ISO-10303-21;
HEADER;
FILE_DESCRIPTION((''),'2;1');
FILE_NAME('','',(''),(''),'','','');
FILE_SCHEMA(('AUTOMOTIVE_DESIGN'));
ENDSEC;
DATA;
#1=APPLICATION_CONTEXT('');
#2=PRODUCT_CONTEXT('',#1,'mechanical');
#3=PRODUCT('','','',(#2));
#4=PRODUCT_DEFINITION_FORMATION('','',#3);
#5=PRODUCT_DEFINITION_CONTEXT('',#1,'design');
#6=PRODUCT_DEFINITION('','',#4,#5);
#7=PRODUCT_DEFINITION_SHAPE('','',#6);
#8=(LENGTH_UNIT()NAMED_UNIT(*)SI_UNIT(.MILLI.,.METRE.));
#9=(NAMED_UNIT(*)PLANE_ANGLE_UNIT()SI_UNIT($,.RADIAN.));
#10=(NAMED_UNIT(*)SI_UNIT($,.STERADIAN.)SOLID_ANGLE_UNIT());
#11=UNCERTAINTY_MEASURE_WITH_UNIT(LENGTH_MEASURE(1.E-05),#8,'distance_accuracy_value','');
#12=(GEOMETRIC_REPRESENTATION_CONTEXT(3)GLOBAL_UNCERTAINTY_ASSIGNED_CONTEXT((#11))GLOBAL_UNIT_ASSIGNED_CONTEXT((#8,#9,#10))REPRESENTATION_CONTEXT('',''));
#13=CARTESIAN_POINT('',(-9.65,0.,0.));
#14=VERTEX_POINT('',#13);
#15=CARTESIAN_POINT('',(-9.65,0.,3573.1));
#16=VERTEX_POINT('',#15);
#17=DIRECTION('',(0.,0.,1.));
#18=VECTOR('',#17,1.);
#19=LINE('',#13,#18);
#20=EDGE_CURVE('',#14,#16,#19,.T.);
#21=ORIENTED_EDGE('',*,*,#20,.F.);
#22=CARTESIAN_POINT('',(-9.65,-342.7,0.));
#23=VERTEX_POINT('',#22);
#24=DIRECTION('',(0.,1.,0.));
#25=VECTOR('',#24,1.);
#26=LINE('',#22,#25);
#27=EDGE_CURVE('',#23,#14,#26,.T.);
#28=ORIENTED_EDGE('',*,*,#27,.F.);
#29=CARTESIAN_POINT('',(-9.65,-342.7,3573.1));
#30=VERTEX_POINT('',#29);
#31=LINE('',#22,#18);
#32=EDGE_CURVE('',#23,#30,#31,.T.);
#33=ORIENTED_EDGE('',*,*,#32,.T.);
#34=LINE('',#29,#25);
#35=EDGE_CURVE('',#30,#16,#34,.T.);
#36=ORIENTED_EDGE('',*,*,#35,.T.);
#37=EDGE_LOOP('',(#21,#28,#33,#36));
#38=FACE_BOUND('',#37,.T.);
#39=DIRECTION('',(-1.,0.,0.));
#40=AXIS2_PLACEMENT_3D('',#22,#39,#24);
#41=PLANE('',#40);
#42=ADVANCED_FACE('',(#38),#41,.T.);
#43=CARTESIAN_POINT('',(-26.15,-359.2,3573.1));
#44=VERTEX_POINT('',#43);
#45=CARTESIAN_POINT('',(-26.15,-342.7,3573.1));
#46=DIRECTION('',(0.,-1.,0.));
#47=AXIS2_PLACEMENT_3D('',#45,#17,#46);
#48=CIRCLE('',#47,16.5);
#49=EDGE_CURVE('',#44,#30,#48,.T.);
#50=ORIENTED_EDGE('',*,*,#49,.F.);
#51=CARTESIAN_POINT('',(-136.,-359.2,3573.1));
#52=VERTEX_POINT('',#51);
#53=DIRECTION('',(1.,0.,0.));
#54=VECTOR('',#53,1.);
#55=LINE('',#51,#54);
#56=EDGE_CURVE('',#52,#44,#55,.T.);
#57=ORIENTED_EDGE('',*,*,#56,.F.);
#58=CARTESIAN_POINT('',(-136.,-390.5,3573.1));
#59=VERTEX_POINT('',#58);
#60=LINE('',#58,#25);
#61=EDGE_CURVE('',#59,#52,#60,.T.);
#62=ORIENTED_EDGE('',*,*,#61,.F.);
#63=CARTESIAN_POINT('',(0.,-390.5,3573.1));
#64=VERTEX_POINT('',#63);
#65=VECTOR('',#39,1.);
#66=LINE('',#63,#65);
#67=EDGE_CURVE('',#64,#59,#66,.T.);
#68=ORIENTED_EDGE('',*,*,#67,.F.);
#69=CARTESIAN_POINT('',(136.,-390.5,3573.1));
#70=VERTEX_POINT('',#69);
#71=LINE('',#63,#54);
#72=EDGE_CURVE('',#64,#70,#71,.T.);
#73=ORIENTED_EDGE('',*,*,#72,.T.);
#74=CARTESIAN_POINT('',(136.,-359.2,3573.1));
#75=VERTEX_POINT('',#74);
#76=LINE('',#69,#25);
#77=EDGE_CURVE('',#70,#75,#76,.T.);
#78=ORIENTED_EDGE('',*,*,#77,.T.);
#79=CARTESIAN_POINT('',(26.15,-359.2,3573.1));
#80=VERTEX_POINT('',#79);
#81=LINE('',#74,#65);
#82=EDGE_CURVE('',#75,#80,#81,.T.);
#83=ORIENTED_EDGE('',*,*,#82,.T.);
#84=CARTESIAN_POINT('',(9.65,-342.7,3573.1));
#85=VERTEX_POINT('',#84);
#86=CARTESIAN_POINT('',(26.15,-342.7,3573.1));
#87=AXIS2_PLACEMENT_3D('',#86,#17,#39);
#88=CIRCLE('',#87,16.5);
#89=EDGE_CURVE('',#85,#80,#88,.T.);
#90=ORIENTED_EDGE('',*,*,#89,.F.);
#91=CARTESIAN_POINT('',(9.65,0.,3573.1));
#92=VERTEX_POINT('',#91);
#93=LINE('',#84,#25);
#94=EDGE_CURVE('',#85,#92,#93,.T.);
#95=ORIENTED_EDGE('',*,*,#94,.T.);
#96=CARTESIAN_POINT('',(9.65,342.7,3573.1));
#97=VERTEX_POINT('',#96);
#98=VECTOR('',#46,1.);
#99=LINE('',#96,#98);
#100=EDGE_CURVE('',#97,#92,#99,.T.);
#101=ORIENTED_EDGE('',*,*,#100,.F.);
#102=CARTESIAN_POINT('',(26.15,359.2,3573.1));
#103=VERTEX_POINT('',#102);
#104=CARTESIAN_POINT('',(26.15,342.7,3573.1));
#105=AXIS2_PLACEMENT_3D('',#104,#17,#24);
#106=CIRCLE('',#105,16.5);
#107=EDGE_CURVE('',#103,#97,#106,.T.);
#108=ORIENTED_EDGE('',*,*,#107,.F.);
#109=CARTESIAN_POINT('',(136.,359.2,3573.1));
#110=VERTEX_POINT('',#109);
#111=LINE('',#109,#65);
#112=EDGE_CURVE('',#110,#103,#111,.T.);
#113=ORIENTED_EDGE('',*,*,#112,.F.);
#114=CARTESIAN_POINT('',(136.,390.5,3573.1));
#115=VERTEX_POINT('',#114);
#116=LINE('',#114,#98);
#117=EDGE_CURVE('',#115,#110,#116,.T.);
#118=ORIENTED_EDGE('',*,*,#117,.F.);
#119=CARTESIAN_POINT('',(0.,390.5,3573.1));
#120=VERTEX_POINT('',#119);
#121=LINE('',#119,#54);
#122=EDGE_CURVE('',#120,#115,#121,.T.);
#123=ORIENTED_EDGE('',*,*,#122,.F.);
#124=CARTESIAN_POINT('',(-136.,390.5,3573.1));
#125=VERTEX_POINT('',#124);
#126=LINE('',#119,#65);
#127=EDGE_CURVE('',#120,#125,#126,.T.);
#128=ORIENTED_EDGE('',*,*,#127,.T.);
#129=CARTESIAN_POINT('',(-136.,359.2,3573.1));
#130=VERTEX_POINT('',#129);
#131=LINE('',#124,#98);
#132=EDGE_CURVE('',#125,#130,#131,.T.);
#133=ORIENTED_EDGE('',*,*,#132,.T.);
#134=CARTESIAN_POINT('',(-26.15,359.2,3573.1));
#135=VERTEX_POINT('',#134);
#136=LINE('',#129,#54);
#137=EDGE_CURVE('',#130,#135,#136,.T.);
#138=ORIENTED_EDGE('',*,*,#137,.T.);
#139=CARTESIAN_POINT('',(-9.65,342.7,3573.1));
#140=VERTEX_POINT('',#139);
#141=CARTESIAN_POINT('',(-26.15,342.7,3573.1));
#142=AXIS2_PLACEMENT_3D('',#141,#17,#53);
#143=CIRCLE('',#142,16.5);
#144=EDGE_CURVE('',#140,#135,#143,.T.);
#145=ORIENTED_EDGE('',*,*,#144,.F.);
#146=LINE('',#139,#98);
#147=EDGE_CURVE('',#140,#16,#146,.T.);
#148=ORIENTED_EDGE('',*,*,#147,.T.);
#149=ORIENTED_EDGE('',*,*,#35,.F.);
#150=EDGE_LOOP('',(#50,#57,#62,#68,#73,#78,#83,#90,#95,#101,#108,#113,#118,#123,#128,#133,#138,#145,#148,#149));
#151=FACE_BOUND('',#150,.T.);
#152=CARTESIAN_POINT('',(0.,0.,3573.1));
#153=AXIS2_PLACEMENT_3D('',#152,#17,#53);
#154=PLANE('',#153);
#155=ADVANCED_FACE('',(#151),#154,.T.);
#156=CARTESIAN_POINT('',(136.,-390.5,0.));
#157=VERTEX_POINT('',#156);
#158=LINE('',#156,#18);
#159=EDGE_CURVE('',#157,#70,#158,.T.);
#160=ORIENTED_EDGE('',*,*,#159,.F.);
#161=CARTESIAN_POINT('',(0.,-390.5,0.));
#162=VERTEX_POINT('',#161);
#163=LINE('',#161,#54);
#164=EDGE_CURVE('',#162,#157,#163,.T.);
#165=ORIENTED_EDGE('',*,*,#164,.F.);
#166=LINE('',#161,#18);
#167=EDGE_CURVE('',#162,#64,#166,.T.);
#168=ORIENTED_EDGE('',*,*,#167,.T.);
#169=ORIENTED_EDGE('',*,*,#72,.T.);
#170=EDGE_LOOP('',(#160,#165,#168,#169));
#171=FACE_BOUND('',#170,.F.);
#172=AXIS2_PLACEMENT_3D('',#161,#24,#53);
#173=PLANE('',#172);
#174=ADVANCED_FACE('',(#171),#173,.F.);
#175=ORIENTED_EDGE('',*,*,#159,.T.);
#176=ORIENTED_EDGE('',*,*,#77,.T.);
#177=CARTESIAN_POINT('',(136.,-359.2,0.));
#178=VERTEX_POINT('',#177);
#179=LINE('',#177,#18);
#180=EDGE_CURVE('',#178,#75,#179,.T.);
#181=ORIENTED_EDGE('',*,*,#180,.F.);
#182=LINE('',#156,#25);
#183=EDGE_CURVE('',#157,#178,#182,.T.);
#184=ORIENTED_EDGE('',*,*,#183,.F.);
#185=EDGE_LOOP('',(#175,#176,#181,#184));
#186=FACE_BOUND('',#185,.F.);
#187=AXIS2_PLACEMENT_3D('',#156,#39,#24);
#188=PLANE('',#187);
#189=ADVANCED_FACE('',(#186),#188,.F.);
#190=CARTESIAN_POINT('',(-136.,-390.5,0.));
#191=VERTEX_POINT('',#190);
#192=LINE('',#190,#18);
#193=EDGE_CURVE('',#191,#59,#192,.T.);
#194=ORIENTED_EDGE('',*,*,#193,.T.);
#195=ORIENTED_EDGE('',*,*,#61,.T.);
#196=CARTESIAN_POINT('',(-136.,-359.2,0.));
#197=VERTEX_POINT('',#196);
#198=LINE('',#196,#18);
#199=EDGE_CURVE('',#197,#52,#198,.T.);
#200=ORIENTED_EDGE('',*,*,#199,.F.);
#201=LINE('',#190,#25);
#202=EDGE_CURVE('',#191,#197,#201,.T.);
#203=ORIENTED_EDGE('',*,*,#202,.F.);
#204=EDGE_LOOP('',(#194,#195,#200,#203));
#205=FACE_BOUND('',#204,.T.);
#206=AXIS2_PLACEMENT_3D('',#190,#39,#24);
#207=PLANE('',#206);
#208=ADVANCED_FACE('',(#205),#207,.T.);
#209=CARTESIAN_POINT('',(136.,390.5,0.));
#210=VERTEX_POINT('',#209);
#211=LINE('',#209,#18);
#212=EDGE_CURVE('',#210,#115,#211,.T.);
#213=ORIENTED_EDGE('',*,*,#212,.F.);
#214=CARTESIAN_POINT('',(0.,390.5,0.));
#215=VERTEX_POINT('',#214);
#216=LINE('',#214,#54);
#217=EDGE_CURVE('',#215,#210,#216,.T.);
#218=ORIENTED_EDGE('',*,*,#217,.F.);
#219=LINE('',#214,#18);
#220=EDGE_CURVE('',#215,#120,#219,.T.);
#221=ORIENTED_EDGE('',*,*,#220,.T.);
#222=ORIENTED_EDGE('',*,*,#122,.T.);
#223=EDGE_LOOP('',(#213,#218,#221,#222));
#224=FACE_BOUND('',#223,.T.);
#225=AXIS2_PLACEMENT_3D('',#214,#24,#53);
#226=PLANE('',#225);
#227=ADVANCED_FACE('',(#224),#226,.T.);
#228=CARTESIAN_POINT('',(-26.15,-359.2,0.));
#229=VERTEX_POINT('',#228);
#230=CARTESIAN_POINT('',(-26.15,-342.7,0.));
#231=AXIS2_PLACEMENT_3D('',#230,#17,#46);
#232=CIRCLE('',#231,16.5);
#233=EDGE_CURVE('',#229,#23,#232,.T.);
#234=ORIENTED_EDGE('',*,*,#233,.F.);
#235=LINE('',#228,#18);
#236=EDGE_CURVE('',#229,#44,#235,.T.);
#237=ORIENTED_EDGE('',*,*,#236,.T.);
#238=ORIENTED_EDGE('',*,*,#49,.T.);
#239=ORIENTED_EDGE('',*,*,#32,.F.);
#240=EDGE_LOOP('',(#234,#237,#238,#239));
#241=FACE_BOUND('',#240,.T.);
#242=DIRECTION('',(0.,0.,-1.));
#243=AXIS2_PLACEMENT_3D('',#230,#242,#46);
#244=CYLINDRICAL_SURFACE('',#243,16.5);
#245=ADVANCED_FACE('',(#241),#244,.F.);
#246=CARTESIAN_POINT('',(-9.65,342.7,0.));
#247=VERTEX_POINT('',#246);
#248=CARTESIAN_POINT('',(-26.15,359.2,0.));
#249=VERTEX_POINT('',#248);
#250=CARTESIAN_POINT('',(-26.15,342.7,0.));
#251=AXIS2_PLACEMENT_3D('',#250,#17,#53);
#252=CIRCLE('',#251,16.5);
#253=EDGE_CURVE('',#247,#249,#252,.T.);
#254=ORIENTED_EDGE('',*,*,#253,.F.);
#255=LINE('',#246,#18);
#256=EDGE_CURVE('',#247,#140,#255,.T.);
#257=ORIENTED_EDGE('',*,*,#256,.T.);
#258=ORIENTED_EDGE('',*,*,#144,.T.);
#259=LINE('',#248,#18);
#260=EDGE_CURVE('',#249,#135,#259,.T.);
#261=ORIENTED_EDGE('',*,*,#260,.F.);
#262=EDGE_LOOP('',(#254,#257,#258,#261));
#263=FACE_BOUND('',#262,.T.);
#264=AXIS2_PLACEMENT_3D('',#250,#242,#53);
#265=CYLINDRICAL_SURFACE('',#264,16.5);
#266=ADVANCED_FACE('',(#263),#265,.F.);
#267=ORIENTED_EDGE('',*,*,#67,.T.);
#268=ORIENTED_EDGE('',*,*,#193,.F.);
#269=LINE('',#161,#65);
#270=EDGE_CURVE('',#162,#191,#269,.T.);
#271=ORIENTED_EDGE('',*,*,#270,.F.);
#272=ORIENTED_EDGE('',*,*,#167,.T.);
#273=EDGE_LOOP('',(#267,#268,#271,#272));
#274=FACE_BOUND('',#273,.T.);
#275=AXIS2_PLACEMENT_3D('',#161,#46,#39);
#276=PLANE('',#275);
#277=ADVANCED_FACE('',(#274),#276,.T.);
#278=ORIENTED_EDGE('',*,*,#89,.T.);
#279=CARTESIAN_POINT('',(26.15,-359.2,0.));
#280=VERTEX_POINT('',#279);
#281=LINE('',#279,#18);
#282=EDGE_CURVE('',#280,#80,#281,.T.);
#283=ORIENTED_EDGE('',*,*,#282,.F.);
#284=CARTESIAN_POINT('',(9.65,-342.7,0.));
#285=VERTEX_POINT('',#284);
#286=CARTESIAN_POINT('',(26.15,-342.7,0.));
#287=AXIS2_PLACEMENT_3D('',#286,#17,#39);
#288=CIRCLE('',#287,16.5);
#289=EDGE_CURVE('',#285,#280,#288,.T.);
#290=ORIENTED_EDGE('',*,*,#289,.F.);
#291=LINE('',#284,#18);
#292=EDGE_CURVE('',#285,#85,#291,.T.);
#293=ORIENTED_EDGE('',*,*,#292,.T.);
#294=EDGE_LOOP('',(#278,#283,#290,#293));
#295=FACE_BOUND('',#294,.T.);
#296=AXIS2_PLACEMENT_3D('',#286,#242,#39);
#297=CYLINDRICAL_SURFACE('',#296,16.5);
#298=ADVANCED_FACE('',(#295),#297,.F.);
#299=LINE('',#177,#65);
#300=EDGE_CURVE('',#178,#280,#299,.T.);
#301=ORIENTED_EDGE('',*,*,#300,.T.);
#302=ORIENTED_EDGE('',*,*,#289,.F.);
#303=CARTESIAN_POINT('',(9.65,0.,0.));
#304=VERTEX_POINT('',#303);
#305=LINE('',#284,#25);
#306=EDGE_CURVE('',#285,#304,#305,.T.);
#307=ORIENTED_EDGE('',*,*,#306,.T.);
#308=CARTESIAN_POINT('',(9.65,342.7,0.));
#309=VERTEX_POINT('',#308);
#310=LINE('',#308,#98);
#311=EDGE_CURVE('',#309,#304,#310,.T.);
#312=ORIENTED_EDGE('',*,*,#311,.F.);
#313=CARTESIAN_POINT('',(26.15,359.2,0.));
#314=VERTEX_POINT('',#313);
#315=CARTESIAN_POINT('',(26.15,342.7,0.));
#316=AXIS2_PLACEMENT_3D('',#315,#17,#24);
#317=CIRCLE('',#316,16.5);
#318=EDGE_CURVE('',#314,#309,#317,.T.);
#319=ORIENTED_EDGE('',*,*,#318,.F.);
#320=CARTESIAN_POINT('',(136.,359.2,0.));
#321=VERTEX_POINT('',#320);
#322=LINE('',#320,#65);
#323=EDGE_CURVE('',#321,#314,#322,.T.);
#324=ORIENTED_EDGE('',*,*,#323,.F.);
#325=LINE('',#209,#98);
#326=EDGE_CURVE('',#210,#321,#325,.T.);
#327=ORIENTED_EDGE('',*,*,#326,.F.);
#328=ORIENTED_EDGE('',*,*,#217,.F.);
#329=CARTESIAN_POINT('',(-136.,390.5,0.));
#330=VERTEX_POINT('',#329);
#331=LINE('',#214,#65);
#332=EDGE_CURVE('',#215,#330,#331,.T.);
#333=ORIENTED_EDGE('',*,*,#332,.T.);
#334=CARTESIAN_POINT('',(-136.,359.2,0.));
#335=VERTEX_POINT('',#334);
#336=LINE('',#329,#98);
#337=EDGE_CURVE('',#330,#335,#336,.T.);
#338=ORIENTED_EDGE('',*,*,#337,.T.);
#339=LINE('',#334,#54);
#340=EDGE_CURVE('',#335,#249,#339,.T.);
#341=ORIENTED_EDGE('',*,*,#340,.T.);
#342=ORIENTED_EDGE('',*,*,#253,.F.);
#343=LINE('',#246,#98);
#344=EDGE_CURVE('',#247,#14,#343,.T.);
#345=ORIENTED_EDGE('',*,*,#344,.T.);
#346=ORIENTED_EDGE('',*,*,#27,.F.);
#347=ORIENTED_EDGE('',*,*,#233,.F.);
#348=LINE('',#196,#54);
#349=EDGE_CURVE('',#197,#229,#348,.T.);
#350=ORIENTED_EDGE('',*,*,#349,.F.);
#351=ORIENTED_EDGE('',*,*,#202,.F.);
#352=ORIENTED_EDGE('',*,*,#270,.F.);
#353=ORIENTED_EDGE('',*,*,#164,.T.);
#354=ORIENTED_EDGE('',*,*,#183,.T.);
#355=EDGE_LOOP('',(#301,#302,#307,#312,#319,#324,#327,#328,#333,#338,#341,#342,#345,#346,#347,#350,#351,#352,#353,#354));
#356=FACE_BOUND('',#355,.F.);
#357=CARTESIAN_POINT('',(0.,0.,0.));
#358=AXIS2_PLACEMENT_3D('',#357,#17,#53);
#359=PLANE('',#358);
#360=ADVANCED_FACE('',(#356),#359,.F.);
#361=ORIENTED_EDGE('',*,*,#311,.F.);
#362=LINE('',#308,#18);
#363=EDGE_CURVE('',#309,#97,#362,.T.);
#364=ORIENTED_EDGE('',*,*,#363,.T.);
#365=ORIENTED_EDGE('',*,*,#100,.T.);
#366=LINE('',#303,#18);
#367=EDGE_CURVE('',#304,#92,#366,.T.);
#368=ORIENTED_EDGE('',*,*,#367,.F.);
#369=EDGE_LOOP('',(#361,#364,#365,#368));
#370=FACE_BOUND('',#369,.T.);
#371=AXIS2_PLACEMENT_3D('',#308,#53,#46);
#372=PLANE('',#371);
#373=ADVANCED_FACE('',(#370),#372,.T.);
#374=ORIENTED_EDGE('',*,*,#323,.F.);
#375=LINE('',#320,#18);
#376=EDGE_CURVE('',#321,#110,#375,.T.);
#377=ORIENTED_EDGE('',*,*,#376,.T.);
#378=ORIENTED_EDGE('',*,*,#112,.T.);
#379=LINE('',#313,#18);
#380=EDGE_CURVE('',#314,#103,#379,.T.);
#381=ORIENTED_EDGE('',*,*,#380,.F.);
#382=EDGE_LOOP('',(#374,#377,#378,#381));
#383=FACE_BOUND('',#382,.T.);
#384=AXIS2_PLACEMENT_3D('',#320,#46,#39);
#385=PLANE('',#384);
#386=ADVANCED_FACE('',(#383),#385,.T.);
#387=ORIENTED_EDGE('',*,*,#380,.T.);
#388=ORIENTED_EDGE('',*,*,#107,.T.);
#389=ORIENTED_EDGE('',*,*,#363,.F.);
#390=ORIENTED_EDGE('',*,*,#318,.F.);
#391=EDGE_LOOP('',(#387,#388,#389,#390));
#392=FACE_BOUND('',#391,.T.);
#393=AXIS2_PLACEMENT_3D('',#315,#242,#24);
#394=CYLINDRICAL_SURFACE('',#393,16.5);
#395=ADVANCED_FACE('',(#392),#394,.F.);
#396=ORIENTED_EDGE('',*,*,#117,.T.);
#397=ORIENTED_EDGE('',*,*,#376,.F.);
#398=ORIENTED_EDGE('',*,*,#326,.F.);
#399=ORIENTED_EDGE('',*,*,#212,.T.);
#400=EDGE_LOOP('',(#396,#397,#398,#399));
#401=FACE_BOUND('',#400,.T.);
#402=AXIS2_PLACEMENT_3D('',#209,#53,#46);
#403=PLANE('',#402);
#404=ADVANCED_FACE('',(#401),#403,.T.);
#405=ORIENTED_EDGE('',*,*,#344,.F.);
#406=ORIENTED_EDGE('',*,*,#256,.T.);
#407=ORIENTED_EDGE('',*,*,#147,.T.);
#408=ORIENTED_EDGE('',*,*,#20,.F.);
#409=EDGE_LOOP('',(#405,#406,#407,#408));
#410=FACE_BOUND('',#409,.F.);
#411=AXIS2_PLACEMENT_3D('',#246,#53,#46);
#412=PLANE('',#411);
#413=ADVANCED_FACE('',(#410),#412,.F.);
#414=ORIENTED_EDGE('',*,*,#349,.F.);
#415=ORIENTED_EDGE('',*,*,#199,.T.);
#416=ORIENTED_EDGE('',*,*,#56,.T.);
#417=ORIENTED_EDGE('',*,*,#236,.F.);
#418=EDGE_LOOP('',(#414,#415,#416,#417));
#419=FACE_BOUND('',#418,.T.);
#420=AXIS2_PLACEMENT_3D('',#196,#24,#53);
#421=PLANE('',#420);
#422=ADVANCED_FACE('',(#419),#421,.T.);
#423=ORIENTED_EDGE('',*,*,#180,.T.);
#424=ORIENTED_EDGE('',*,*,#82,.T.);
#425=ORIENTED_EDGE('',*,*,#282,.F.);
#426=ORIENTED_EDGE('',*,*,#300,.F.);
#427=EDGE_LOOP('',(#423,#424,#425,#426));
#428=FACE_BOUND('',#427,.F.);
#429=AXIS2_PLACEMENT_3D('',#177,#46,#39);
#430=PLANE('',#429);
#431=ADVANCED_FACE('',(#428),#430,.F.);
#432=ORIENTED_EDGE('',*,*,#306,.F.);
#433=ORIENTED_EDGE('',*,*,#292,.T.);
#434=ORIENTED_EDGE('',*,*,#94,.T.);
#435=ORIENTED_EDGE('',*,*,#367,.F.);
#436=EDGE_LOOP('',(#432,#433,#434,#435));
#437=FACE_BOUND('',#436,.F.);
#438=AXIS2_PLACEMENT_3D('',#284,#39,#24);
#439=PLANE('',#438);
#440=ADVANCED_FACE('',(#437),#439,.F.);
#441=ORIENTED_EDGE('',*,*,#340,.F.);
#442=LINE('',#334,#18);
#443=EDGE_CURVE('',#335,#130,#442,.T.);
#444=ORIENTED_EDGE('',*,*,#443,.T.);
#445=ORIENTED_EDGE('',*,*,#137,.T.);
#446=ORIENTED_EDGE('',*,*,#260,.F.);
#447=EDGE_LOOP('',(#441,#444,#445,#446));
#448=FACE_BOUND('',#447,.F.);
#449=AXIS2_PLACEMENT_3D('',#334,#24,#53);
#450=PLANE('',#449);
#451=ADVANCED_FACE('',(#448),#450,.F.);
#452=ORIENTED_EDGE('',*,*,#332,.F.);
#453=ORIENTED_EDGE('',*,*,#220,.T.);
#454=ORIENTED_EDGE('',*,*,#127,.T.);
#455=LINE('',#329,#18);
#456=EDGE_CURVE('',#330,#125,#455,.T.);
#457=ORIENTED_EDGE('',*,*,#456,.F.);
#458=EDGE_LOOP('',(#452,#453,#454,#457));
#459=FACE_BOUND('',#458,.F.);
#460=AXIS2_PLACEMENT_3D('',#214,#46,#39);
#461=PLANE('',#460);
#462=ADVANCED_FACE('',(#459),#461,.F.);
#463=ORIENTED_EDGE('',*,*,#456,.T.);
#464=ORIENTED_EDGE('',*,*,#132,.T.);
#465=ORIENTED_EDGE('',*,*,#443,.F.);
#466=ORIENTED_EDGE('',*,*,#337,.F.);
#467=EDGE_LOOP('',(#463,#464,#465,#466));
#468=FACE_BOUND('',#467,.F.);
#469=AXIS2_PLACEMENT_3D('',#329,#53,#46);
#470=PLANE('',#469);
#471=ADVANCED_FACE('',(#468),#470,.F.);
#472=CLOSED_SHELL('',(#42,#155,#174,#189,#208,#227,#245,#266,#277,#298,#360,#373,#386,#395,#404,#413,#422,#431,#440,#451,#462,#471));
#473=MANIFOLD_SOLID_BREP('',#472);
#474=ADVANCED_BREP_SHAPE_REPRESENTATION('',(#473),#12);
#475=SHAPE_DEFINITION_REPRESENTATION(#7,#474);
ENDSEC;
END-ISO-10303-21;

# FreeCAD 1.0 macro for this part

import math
import FreeCAD as App
import Part
import Sketcher
from FreeCAD import Vector
Q = App.Units.Quantity

doc = App.newDocument("Part")
params = doc.addObject("Spreadsheet::Sheet", "Params")
for row, (alias, value) in enumerate([
    ("sketch1_radius", "16.5 mm"),
    ("sketch1_height", "31.3 mm"),
    ("pad1_length", "3573.1 mm"),
], start=1):
    params.set(f"A{row}", alias)
    params.set(f"B{row}", "=" + value)
    params.setAlias(f"B{row}", alias)

body = doc.addObject("PartDesign::Body", "Body")

# Sketch on XY plane
sketch1 = body.newObject("Sketcher::SketchObject", "Sketch")
sketch1.AttachmentSupport = (doc.getObject("XY_Plane"), [""])
sketch1.MapMode = "FlatFace"
sketch1.addGeometry([
    Part.LineSegment(Vector(-136, -359, 0), Vector(-136, -390, 0)),  # 0
    Part.LineSegment(Vector(-136, -390, 0), Vector(136, -390, 0)),  # 1
    Part.LineSegment(Vector(136, -390, 0), Vector(136, -359, 0)),  # 2
    Part.LineSegment(Vector(136, -359, 0), Vector(26, -359, 0)),  # 3
    Part.ArcOfCircle(Part.Circle(Vector(26, -343, 0), Vector(0, 0, 1), 16), math.radians(180), math.radians(270)),  # 4
    Part.LineSegment(Vector(10, -343, 0), Vector(10, 343, 0)),  # 5
    Part.ArcOfCircle(Part.Circle(Vector(26, 343, 0), Vector(0, 0, 1), 16), math.radians(90), math.radians(180)),  # 6
    Part.LineSegment(Vector(26, 359, 0), Vector(136, 359, 0)),  # 7
    Part.LineSegment(Vector(136, 359, 0), Vector(136, 390, 0)),  # 8
    Part.LineSegment(Vector(136, 390, 0), Vector(-136, 390, 0)),  # 9
    Part.LineSegment(Vector(-136, 390, 0), Vector(-136, 359, 0)),  # 10
    Part.LineSegment(Vector(-136, 359, 0), Vector(-26, 359, 0)),  # 11
    Part.ArcOfCircle(Part.Circle(Vector(-26, 343, 0), Vector(0, 0, 1), 16), math.radians(0), math.radians(90)),  # 12
    Part.LineSegment(Vector(-10, 343, 0), Vector(-10, -343, 0)),  # 13
    Part.ArcOfCircle(Part.Circle(Vector(-26, -343, 0), Vector(0, 0, 1), 16), math.radians(-90), math.radians(0)),  # 14
    Part.LineSegment(Vector(-26, -359, 0), Vector(-136, -359, 0)),  # 15
], False)
sketch1.addConstraint([
    Sketcher.Constraint("Coincident", 0, 2, 1, 1),
    Sketcher.Constraint("Coincident", 1, 2, 2, 1),
    Sketcher.Constraint("Coincident", 2, 2, 3, 1),
    Sketcher.Constraint("Tangent", 3, 2, 4, 2),
    Sketcher.Constraint("Tangent", 4, 1, 5, 1),
    Sketcher.Constraint("Tangent", 5, 2, 6, 2),
    Sketcher.Constraint("Tangent", 6, 1, 7, 1),
    Sketcher.Constraint("Coincident", 7, 2, 8, 1),
    Sketcher.Constraint("Coincident", 8, 2, 9, 1),
    Sketcher.Constraint("Coincident", 9, 2, 10, 1),
    Sketcher.Constraint("Coincident", 10, 2, 11, 1),
    Sketcher.Constraint("Tangent", 11, 2, 12, 2),
    Sketcher.Constraint("Tangent", 12, 1, 13, 1),
    Sketcher.Constraint("Tangent", 13, 2, 14, 2),
    Sketcher.Constraint("Tangent", 14, 1, 15, 1),
    Sketcher.Constraint("Coincident", 15, 2, 0, 1),
    Sketcher.Constraint("Vertical", 0),
    Sketcher.Constraint("Horizontal", 1),
    Sketcher.Constraint("Vertical", 2),
    Sketcher.Constraint("Horizontal", 3),
    Sketcher.Constraint("Vertical", 5),
    Sketcher.Constraint("Horizontal", 7),
    Sketcher.Constraint("Vertical", 8),
    Sketcher.Constraint("Horizontal", 9),
    Sketcher.Constraint("Vertical", 10),
    Sketcher.Constraint("Horizontal", 11),
    Sketcher.Constraint("Vertical", 13),
    Sketcher.Constraint("Horizontal", 15),
    Sketcher.Constraint("Equal", 4, 6),
    Sketcher.Constraint("Equal", 6, 12),
    Sketcher.Constraint("Equal", 12, 14),
    Sketcher.Constraint("Symmetric", 4, 3, 12, 3, -1, 1),
    Sketcher.Constraint("Symmetric", 0, 2, 8, 2, -1, 1),
    Sketcher.Constraint("Symmetric", 7, 2, 10, 2, -2),
    Sketcher.Constraint("Symmetric", 2, 2, 15, 2, -2),
    Sketcher.Constraint("Radius", 4, Q("16.5 mm")),
    Sketcher.Constraint("DistanceY", 0, 2, 0, 1, Q("31.3 mm")),
    Sketcher.Constraint("DistanceX", 0, 2, -1, 1, Q("136 mm")),
    Sketcher.Constraint("DistanceY", 0, 2, -1, 1, Q("390.5 mm")),
    Sketcher.Constraint("DistanceX", -1, 1, 4, 1, Q("9.65 mm")),
])
sketch1.setExpression("Constraints[35]", "Params.sketch1_radius")
sketch1.setExpression("Constraints[36]", "Params.sketch1_height")
pad1 = body.newObject("PartDesign::Pad", "Pad")
pad1.Profile = sketch1
pad1.setExpression("Length", "Params.pad1_length")

doc.recompute()
